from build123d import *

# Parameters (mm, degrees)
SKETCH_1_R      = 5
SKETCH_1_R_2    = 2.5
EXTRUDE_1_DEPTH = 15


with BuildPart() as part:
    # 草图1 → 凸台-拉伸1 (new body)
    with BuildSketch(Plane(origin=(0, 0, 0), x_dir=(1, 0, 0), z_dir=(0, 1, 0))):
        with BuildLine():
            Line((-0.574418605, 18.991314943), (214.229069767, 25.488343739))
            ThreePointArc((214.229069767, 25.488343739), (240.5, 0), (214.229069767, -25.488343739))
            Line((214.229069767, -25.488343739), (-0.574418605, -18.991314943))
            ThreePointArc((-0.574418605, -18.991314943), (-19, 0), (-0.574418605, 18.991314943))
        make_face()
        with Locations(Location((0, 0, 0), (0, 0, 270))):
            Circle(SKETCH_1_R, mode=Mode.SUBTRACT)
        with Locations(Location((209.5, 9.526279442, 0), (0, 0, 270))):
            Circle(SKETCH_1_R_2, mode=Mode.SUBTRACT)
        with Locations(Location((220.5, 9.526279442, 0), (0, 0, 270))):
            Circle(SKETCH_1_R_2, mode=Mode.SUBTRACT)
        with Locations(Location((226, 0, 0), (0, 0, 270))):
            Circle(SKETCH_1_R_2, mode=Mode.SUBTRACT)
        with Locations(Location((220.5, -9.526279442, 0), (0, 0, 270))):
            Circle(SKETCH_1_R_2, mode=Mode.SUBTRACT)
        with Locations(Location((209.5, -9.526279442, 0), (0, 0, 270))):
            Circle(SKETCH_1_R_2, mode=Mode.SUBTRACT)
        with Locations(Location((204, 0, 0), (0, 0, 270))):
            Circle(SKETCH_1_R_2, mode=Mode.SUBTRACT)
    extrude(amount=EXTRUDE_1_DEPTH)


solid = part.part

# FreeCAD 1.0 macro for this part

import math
import FreeCAD as App
import Part
import Sketcher

V = App.Vector

doc = App.newDocument("Part")
body = doc.addObject("PartDesign::Body", "Body")

# Sketch on XZ plane
sketch1 = doc.addObject("Sketcher::SketchObject", "Sketch")
body.addObject(sketch1)
sketch1.AttachmentSupport = (doc.XZ_Plane, [""])
sketch1.MapMode = "FlatFace"
sketch1.addGeometry(Part.LineSegment(V(214.2, -25.5, 0), V(-0.6, -19, 0)), False)
sketch1.addGeometry(Part.ArcOfCircle(Part.Circle(V(0, 0, 0), V(0, 0, 1), 19), math.radians(92), math.radians(268)), False)
sketch1.addGeometry(Part.LineSegment(V(-0.6, 19, 0), V(214.2, 25.5, 0)), False)
sketch1.addGeometry(Part.ArcOfCircle(Part.Circle(V(215, 0, 0), V(0, 0, 1), 25.5), math.radians(-92), math.radians(92)), False)
sketch1.addGeometry(Part.Circle(V(220.5, 9.5, 0), V(0, 0, 1), 2.5), False)
sketch1.addGeometry(Part.Circle(V(209.5, 9.5, 0), V(0, 0, 1), 2.5), False)
sketch1.addGeometry(Part.Circle(V(226, 0, 0), V(0, 0, 1), 2.5), False)
sketch1.addGeometry(Part.Circle(V(204, 0, 0), V(0, 0, 1), 2.5), False)
sketch1.addGeometry(Part.Circle(V(0, 0, 0), V(0, 0, 1), 5), False)
sketch1.addGeometry(Part.Circle(V(220.5, -9.5, 0), V(0, 0, 1), 2.5), False)
sketch1.addGeometry(Part.Circle(V(209.5, -9.5, 0), V(0, 0, 1), 2.5), False)
sketch1.addConstraint(Sketcher.Constraint("Tangent", 0, 2, 1, 2))
sketch1.addConstraint(Sketcher.Constraint("Tangent", 1, 1, 2, 1))
sketch1.addConstraint(Sketcher.Constraint("Tangent", 2, 2, 3, 2))
sketch1.addConstraint(Sketcher.Constraint("Tangent", 3, 1, 0, 1))
sketch1.addConstraint(Sketcher.Constraint("Coincident", 1, 3, -1, 1))
sketch1.addConstraint(Sketcher.Constraint("Coincident", 8, 3, -1, 1))
sketch1.addConstraint(Sketcher.Constraint("Equal", 4, 5))
sketch1.addConstraint(Sketcher.Constraint("Equal", 5, 6))
sketch1.addConstraint(Sketcher.Constraint("Equal", 6, 7))
sketch1.addConstraint(Sketcher.Constraint("Equal", 7, 9))
sketch1.addConstraint(Sketcher.Constraint("Equal", 9, 10))
sketch1.addConstraint(Sketcher.Constraint("Symmetric", 4, 3, 9, 3, -1))
sketch1.addConstraint(Sketcher.Constraint("Symmetric", 5, 3, 10, 3, -1))
sketch1.addConstraint(Sketcher.Constraint("PointOnObject", 3, 3, -1))
sketch1.addConstraint(Sketcher.Constraint("PointOnObject", 6, 3, -1))
sketch1.addConstraint(Sketcher.Constraint("PointOnObject", 7, 3, -1))
sketch1.addConstraint(Sketcher.Constraint("Horizontal", 4, 3, 5, 3))
sketch1.addConstraint(Sketcher.Constraint("Diameter", 4, 5.0))
sketch1.addConstraint(Sketcher.Constraint("Diameter", 8, 10.0))
sketch1.addConstraint(Sketcher.Constraint("Radius", 1, 19.0))
sketch1.addConstraint(Sketcher.Constraint("Radius", 3, 25.5))
sketch1.addConstraint(Sketcher.Constraint("DistanceX", -1, 1, 3, 3, 215.0))
sketch1.addConstraint(Sketcher.Constraint("DistanceX", -1, 1, 6, 3, 226.0))
sketch1.addConstraint(Sketcher.Constraint("DistanceX", -1, 1, 7, 3, 204.0))
sketch1.addConstraint(Sketcher.Constraint("DistanceX", 5, 3, 4, 3, 11.0))
sketch1.addConstraint(Sketcher.Constraint("DistanceX", -1, 1, 4, 3, 220.5))
sketch1.addConstraint(Sketcher.Constraint("DistanceY", -1, 1, 4, 3, 9.526279))
pad1 = doc.addObject("PartDesign::Pad", "Pad")
body.addObject(pad1)
pad1.Profile = sketch1
pad1.Length = 15
pad1.Reversed = True

doc.recompute()
